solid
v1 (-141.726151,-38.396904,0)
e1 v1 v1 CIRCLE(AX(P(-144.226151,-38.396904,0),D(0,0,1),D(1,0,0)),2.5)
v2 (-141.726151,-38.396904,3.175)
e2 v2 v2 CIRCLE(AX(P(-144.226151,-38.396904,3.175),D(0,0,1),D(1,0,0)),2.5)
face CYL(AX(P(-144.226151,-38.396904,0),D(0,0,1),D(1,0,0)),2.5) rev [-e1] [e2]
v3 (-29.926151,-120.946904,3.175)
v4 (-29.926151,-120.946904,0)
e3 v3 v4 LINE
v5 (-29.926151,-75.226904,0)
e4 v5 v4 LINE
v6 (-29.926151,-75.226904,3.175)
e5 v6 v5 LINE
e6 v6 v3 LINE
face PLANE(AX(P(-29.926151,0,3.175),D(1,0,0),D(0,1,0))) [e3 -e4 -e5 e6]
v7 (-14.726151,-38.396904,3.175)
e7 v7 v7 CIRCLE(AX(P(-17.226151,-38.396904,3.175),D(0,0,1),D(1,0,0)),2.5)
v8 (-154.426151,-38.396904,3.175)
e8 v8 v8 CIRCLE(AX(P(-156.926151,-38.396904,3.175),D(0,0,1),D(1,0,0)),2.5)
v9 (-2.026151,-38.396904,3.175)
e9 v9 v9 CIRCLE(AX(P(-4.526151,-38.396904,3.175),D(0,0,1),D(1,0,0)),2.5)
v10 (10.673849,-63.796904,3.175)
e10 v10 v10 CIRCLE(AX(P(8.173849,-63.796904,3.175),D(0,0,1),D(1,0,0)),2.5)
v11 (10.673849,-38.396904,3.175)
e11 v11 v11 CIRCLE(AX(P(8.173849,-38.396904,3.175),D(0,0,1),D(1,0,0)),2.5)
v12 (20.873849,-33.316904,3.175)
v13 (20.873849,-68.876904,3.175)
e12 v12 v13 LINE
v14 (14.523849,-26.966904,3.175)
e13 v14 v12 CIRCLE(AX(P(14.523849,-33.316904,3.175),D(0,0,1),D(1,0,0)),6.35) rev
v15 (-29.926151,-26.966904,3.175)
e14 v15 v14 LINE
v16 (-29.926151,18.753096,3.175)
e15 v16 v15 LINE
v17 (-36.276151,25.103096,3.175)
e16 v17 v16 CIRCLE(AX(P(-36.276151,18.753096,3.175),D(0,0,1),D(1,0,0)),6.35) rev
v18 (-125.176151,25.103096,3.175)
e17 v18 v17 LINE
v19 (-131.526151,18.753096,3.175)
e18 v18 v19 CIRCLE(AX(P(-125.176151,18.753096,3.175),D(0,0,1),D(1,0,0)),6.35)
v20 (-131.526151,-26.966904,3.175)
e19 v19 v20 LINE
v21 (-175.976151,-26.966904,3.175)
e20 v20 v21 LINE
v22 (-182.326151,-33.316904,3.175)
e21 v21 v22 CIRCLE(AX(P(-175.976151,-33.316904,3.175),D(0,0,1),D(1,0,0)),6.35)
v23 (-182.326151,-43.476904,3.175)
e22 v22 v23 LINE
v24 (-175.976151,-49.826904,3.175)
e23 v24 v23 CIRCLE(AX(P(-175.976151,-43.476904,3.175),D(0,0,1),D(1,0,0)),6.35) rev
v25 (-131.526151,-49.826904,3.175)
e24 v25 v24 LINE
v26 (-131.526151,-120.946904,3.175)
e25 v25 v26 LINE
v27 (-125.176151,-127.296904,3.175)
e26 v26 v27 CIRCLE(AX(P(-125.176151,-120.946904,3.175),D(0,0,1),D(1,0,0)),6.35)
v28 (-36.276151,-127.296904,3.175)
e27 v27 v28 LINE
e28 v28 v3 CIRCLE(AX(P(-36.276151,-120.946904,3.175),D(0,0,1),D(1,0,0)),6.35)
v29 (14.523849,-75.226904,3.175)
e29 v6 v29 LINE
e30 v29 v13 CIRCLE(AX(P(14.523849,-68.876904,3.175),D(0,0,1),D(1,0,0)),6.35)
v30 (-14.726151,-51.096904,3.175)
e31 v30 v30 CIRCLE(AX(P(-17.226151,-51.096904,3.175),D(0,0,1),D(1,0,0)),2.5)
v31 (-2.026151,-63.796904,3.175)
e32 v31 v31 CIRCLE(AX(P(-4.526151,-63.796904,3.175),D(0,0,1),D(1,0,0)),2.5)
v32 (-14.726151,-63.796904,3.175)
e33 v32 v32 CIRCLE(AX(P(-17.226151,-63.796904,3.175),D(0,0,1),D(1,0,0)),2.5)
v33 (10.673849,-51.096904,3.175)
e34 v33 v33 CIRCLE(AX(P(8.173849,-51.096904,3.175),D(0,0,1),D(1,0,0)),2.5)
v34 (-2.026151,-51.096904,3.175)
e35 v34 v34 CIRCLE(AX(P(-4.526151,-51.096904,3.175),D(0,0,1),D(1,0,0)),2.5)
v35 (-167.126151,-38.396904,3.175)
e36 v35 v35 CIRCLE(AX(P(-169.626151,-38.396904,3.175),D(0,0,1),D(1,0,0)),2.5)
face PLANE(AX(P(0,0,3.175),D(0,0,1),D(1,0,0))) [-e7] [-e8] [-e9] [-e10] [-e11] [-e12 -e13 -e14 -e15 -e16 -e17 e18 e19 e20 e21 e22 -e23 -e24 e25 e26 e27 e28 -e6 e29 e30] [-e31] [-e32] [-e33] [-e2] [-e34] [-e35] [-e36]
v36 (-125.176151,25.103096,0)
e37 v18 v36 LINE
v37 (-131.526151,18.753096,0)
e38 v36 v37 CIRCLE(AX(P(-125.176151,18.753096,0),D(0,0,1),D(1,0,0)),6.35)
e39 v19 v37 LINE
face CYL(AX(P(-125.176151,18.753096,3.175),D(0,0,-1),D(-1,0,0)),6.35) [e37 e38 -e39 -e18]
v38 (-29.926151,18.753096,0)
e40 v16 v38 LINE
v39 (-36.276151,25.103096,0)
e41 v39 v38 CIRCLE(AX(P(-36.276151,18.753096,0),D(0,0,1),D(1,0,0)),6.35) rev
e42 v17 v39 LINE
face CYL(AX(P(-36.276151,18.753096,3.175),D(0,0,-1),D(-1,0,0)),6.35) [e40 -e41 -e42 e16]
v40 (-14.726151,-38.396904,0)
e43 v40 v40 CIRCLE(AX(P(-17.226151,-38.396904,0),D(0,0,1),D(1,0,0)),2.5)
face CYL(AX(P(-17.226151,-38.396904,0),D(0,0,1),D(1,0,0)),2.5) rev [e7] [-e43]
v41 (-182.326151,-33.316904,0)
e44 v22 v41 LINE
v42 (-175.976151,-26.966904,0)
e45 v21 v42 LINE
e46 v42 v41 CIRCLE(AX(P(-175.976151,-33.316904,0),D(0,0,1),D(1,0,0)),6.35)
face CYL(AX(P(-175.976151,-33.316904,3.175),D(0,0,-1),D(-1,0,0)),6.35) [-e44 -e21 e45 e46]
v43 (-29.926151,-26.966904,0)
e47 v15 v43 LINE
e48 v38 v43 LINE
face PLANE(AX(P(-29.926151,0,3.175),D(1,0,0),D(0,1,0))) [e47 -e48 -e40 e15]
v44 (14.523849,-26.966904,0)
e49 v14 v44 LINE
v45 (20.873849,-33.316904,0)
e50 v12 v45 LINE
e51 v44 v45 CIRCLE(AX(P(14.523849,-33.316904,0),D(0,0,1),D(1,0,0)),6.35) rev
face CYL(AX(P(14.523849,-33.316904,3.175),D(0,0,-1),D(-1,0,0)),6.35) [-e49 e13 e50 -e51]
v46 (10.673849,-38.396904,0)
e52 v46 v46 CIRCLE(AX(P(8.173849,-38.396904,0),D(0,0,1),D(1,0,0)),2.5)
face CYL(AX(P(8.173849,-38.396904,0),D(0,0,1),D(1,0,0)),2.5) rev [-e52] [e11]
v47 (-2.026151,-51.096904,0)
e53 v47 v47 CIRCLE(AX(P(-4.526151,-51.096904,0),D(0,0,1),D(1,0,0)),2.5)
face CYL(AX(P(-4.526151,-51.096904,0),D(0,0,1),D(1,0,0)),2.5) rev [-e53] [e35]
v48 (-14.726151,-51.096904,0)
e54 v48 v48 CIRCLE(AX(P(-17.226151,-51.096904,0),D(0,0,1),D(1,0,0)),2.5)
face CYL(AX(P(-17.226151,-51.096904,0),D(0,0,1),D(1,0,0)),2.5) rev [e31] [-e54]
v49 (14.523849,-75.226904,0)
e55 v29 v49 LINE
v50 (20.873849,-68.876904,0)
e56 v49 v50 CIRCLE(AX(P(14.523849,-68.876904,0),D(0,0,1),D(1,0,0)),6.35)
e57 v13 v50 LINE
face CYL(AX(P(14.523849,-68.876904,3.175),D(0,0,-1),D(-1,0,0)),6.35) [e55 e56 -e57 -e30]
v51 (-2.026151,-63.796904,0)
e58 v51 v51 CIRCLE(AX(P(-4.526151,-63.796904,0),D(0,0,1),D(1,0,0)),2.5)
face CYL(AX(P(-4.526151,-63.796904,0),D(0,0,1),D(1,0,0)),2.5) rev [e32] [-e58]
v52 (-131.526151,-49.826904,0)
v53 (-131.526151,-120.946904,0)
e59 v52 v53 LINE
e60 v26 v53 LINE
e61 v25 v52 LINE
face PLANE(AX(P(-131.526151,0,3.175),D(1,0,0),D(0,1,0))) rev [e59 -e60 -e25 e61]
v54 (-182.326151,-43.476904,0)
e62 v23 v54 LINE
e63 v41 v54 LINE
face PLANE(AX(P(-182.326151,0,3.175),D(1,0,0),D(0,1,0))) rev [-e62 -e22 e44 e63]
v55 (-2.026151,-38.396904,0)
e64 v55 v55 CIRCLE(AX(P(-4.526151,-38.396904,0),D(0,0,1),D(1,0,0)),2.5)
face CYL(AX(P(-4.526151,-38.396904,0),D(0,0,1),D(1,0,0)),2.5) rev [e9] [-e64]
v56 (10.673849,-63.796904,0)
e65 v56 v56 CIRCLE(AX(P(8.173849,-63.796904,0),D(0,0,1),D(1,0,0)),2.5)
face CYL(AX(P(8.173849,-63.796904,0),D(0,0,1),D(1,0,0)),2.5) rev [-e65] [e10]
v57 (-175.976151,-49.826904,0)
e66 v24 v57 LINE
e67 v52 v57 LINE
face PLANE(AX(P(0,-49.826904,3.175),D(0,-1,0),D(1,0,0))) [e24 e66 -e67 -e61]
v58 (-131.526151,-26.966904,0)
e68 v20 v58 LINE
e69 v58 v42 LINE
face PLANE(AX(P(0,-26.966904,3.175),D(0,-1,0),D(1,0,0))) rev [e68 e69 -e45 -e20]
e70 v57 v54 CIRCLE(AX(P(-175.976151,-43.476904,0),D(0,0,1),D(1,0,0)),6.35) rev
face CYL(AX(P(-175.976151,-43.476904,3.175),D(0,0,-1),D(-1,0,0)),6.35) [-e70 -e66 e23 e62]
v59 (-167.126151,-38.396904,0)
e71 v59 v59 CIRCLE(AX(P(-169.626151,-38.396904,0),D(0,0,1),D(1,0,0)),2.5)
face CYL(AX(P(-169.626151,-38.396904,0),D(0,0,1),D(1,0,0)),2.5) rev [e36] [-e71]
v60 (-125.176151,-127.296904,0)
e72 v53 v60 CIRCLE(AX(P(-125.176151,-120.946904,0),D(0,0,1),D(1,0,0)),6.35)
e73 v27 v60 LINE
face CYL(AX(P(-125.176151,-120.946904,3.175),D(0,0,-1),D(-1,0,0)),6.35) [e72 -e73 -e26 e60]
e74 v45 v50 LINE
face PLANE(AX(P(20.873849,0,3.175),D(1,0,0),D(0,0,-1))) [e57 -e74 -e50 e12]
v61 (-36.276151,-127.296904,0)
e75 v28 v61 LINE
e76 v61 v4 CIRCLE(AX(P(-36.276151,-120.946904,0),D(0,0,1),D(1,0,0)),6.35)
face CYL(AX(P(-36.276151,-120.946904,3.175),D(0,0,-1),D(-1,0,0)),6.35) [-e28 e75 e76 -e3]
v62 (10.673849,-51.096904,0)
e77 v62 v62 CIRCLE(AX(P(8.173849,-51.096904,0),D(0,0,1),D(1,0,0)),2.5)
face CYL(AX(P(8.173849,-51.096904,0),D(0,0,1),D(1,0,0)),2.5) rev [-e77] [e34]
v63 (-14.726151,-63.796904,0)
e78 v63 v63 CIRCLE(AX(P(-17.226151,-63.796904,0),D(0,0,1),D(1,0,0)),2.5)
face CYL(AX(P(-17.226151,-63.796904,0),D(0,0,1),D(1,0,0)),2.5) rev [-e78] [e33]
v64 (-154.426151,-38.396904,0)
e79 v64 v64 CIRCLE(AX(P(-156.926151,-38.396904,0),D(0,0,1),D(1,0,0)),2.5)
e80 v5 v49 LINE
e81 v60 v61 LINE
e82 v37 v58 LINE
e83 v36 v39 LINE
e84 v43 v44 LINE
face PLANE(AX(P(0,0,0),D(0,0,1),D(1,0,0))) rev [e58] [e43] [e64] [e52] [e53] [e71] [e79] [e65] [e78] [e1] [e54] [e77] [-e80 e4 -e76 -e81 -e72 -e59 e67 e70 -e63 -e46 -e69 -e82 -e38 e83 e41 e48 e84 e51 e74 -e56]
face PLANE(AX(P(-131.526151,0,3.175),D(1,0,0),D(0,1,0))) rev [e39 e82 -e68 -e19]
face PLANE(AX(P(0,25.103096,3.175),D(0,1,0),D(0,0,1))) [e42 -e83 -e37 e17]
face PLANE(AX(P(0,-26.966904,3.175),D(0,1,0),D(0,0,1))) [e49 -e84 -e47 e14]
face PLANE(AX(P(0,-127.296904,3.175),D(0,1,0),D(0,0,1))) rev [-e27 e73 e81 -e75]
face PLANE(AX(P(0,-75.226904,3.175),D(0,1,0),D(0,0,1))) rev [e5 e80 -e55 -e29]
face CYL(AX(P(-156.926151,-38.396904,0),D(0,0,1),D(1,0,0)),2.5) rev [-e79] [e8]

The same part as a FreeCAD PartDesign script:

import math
import FreeCAD as App
import Part
import Sketcher
Q = App.Units.Quantity

doc = App.newDocument("Part")
body = doc.addObject("PartDesign::Body", "Body")

sketch1 = body.newObject("Sketcher::SketchObject", "Sketch")
sketch1.AttachmentSupport = (doc.getObject("XY_Plane"), [""])
sketch1.MapMode = "FlatFace"
sketch1.addGeometry([
    Part.LineSegment(App.Vector(-36, 25, 0), App.Vector(-125, 25, 0)),
    Part.ArcOfCircle(Part.Circle(App.Vector(-125, 19, 0), App.Vector(0, 0, 1), 6), math.radians(90), math.radians(180)),
    Part.LineSegment(App.Vector(-132, 19, 0), App.Vector(-132, -27, 0)),
    Part.LineSegment(App.Vector(-132, -27, 0), App.Vector(-176, -27, 0)),
    Part.ArcOfCircle(Part.Circle(App.Vector(-176, -33, 0), App.Vector(0, 0, 1), 6), math.radians(90), math.radians(180)),
    Part.LineSegment(App.Vector(-182, -33, 0), App.Vector(-182, -43, 0)),
    Part.ArcOfCircle(Part.Circle(App.Vector(-176, -43, 0), App.Vector(0, 0, 1), 6), math.radians(-180), math.radians(-90)),
    Part.LineSegment(App.Vector(-176, -50, 0), App.Vector(-132, -50, 0)),
    Part.LineSegment(App.Vector(-132, -50, 0), App.Vector(-132, -121, 0)),
    Part.ArcOfCircle(Part.Circle(App.Vector(-125, -121, 0), App.Vector(0, 0, 1), 6), math.radians(-180), math.radians(-90)),
    Part.LineSegment(App.Vector(-125, -127, 0), App.Vector(-36, -127, 0)),
    Part.ArcOfCircle(Part.Circle(App.Vector(-36, -121, 0), App.Vector(0, 0, 1), 6), math.radians(-90), math.radians(0)),
    Part.LineSegment(App.Vector(-30, -121, 0), App.Vector(-30, -75, 0)),
    Part.LineSegment(App.Vector(-30, -75, 0), App.Vector(15, -75, 0)),
    Part.ArcOfCircle(Part.Circle(App.Vector(15, -69, 0), App.Vector(0, 0, 1), 6), math.radians(-90), math.radians(0)),
    Part.LineSegment(App.Vector(21, -69, 0), App.Vector(21, -33, 0)),
    Part.ArcOfCircle(Part.Circle(App.Vector(15, -33, 0), App.Vector(0, 0, 1), 6), math.radians(0), math.radians(90)),
    Part.LineSegment(App.Vector(15, -27, 0), App.Vector(-30, -27, 0)),
    Part.LineSegment(App.Vector(-30, -27, 0), App.Vector(-30, 19, 0)),
    Part.ArcOfCircle(Part.Circle(App.Vector(-36, 19, 0), App.Vector(0, 0, 1), 6), math.radians(0), math.radians(90)),
], False)
sketch1.addConstraint([
    Sketcher.Constraint("Tangent", 0, 2, 1, 1),
    Sketcher.Constraint("Tangent", 1, 2, 2, 1),
    Sketcher.Constraint("Coincident", 2, 2, 3, 1),
    Sketcher.Constraint("Tangent", 3, 2, 4, 1),
    Sketcher.Constraint("Tangent", 4, 2, 5, 1),
    Sketcher.Constraint("Tangent", 5, 2, 6, 1),
    Sketcher.Constraint("Tangent", 6, 2, 7, 1),
    Sketcher.Constraint("Coincident", 7, 2, 8, 1),
    Sketcher.Constraint("Tangent", 8, 2, 9, 1),
    Sketcher.Constraint("Tangent", 9, 2, 10, 1),
    Sketcher.Constraint("Tangent", 10, 2, 11, 1),
    Sketcher.Constraint("Tangent", 11, 2, 12, 1),
    Sketcher.Constraint("Coincident", 12, 2, 13, 1),
    Sketcher.Constraint("Tangent", 13, 2, 14, 1),
    Sketcher.Constraint("Tangent", 14, 2, 15, 1),
    Sketcher.Constraint("Tangent", 15, 2, 16, 1),
    Sketcher.Constraint("Tangent", 16, 2, 17, 1),
    Sketcher.Constraint("Coincident", 17, 2, 18, 1),
    Sketcher.Constraint("Tangent", 18, 2, 19, 1),
    Sketcher.Constraint("Tangent", 19, 2, 0, 1),
    Sketcher.Constraint("Horizontal", 0),
    Sketcher.Constraint("Vertical", 2),
    Sketcher.Constraint("Horizontal", 3),
    Sketcher.Constraint("Vertical", 5),
    Sketcher.Constraint("Horizontal", 7),
    Sketcher.Constraint("Vertical", 8),
    Sketcher.Constraint("Horizontal", 10),
    Sketcher.Constraint("Vertical", 12),
    Sketcher.Constraint("Horizontal", 13),
    Sketcher.Constraint("Vertical", 15),
    Sketcher.Constraint("Horizontal", 17),
    Sketcher.Constraint("Vertical", 18),
    Sketcher.Constraint("Equal", 1, 4),
    Sketcher.Constraint("Equal", 4, 6),
    Sketcher.Constraint("Equal", 6, 9),
    Sketcher.Constraint("Equal", 9, 11),
    Sketcher.Constraint("Equal", 11, 14),
    Sketcher.Constraint("Equal", 14, 16),
    Sketcher.Constraint("Equal", 16, 19),
    Sketcher.Constraint("Horizontal", 4, 3, 16, 3),
    Sketcher.Constraint("Vertical", 1, 3, 9, 3),
    Sketcher.Constraint("Vertical", 11, 3, 19, 3),
    Sketcher.Constraint("Equal", 7, 13),
    Sketcher.Constraint("Equal", 2, 12),
    Sketcher.Constraint("Radius", 1, Q("0.25 in")),
    Sketcher.Constraint("DistanceX", 0, 2, 0, 1, Q("3.5 in")),
    Sketcher.Constraint("DistanceY", 2, 2, 2, 1, Q("1.8 in")),
    Sketcher.Constraint("DistanceY", 5, 2, 5, 1, Q("0.4 in")),
    Sketcher.Constraint("DistanceY", 8, 2, 8, 1, Q("2.8 in")),
    Sketcher.Constraint("DistanceX", 4, 3, 1, 3, Q("2 in")),
    Sketcher.Constraint("DistanceX", 1, 3, -1, 1, Q("125.176151 mm")),
    Sketcher.Constraint("DistanceY", -1, 1, 1, 3, Q("18.753096 mm")),
])
pad1 = body.newObject("PartDesign::Pad", "Pad")
pad1.Profile = sketch1
pad1.Length = Q("0.125 in")

sketch2 = body.newObject("Sketcher::SketchObject", "Sketch001")
sketch2.AttachmentSupport = (doc.getObject("XY_Plane"), [""])
sketch2.MapMode = "FlatFace"
sketch2.AttachmentOffset = App.Placement(App.Vector(0, 0, 0.125 * 25.4), App.Rotation())
sketch2.addGeometry([
    Part.Circle(App.Vector(-169.6, -38.4, 0), App.Vector(0, 0, 1), 2.5),
    Part.Circle(App.Vector(8.2, -63.8, 0), App.Vector(0, 0, 1), 2.5),
    Part.Circle(App.Vector(-156.9, -38.4, 0), App.Vector(0, 0, 1), 2.5),
    Part.Circle(App.Vector(-144.2, -38.4, 0), App.Vector(0, 0, 1), 2.5),
    Part.Circle(App.Vector(-4.5, -63.8, 0), App.Vector(0, 0, 1), 2.5),
    Part.Circle(App.Vector(-17.2, -63.8, 0), App.Vector(0, 0, 1), 2.5),
    Part.Circle(App.Vector(-4.5, -51.1, 0), App.Vector(0, 0, 1), 2.5),
    Part.Circle(App.Vector(-17.2, -51.1, 0), App.Vector(0, 0, 1), 2.5),
    Part.Circle(App.Vector(-4.5, -38.4, 0), App.Vector(0, 0, 1), 2.5),
    Part.Circle(App.Vector(-17.2, -38.4, 0), App.Vector(0, 0, 1), 2.5),
    Part.Circle(App.Vector(8.2, -51.1, 0), App.Vector(0, 0, 1), 2.5),
    Part.Circle(App.Vector(8.2, -38.4, 0), App.Vector(0, 0, 1), 2.5),
], False)
sketch2.addConstraint([
    Sketcher.Constraint("Equal", 0, 1),
    Sketcher.Constraint("Equal", 1, 2),
    Sketcher.Constraint("Equal", 2, 3),
    Sketcher.Constraint("Equal", 3, 4),
    Sketcher.Constraint("Equal", 4, 5),
    Sketcher.Constraint("Equal", 5, 6),
    Sketcher.Constraint("Equal", 6, 7),
    Sketcher.Constraint("Equal", 7, 8),
    Sketcher.Constraint("Equal", 8, 9),
    Sketcher.Constraint("Equal", 9, 10),
    Sketcher.Constraint("Equal", 10, 11),
    Sketcher.Constraint("Horizontal", 0, 3, 2, 3),
    Sketcher.Constraint("Horizontal", 2, 3, 3, 3),
    Sketcher.Constraint("Horizontal", 1, 3, 4, 3),
    Sketcher.Constraint("Horizontal", 4, 3, 5, 3),
    Sketcher.Constraint("Horizontal", 6, 3, 7, 3),
    Sketcher.Constraint("Horizontal", 3, 3, 8, 3),
    Sketcher.Constraint("Horizontal", 8, 3, 9, 3),
    Sketcher.Constraint("Horizontal", 7, 3, 10, 3),
    Sketcher.Constraint("Horizontal", 9, 3, 11, 3),
    Sketcher.Constraint("Vertical", 4, 3, 6, 3),
    Sketcher.Constraint("Vertical", 5, 3, 7, 3),
    Sketcher.Constraint("Vertical", 6, 3, 8, 3),
    Sketcher.Constraint("Vertical", 7, 3, 9, 3),
    Sketcher.Constraint("Vertical", 1, 3, 10, 3),
    Sketcher.Constraint("Vertical", 10, 3, 11, 3),
    Sketcher.Constraint("DistanceX", 0, 3, 1, 3, Q("7 in")),
    Sketcher.Constraint("DistanceY", 1, 3, 0, 3, Q("1 in")),
    Sketcher.Constraint("DistanceX", 0, 3, 3, 3, Q("1 in")),
    Sketcher.Constraint("DistanceX", 2, 3, 4, 3, Q("6 in")),
    Sketcher.Constraint("DistanceX", 5, 3, 1, 3, Q("1 in")),
    Sketcher.Constraint("DistanceX", 0, 3, 2, 3, Q("0.5 in")),
    Sketcher.Constraint("DistanceY", 4, 3, 6, 3, Q("0.5 in")),
    Sketcher.Constraint("Diameter", 0, Q("5 mm")),
    Sketcher.Constraint("DistanceX", 0, 3, -1, 1, Q("169.626151 mm")),
    Sketcher.Constraint("DistanceY", 0, 3, -1, 1, Q("38.396904 mm")),
])
pocket1 = body.newObject("PartDesign::Pocket", "Pocket")
pocket1.Profile = sketch2
pocket1.Type = "ThroughAll"

doc.recompute()
